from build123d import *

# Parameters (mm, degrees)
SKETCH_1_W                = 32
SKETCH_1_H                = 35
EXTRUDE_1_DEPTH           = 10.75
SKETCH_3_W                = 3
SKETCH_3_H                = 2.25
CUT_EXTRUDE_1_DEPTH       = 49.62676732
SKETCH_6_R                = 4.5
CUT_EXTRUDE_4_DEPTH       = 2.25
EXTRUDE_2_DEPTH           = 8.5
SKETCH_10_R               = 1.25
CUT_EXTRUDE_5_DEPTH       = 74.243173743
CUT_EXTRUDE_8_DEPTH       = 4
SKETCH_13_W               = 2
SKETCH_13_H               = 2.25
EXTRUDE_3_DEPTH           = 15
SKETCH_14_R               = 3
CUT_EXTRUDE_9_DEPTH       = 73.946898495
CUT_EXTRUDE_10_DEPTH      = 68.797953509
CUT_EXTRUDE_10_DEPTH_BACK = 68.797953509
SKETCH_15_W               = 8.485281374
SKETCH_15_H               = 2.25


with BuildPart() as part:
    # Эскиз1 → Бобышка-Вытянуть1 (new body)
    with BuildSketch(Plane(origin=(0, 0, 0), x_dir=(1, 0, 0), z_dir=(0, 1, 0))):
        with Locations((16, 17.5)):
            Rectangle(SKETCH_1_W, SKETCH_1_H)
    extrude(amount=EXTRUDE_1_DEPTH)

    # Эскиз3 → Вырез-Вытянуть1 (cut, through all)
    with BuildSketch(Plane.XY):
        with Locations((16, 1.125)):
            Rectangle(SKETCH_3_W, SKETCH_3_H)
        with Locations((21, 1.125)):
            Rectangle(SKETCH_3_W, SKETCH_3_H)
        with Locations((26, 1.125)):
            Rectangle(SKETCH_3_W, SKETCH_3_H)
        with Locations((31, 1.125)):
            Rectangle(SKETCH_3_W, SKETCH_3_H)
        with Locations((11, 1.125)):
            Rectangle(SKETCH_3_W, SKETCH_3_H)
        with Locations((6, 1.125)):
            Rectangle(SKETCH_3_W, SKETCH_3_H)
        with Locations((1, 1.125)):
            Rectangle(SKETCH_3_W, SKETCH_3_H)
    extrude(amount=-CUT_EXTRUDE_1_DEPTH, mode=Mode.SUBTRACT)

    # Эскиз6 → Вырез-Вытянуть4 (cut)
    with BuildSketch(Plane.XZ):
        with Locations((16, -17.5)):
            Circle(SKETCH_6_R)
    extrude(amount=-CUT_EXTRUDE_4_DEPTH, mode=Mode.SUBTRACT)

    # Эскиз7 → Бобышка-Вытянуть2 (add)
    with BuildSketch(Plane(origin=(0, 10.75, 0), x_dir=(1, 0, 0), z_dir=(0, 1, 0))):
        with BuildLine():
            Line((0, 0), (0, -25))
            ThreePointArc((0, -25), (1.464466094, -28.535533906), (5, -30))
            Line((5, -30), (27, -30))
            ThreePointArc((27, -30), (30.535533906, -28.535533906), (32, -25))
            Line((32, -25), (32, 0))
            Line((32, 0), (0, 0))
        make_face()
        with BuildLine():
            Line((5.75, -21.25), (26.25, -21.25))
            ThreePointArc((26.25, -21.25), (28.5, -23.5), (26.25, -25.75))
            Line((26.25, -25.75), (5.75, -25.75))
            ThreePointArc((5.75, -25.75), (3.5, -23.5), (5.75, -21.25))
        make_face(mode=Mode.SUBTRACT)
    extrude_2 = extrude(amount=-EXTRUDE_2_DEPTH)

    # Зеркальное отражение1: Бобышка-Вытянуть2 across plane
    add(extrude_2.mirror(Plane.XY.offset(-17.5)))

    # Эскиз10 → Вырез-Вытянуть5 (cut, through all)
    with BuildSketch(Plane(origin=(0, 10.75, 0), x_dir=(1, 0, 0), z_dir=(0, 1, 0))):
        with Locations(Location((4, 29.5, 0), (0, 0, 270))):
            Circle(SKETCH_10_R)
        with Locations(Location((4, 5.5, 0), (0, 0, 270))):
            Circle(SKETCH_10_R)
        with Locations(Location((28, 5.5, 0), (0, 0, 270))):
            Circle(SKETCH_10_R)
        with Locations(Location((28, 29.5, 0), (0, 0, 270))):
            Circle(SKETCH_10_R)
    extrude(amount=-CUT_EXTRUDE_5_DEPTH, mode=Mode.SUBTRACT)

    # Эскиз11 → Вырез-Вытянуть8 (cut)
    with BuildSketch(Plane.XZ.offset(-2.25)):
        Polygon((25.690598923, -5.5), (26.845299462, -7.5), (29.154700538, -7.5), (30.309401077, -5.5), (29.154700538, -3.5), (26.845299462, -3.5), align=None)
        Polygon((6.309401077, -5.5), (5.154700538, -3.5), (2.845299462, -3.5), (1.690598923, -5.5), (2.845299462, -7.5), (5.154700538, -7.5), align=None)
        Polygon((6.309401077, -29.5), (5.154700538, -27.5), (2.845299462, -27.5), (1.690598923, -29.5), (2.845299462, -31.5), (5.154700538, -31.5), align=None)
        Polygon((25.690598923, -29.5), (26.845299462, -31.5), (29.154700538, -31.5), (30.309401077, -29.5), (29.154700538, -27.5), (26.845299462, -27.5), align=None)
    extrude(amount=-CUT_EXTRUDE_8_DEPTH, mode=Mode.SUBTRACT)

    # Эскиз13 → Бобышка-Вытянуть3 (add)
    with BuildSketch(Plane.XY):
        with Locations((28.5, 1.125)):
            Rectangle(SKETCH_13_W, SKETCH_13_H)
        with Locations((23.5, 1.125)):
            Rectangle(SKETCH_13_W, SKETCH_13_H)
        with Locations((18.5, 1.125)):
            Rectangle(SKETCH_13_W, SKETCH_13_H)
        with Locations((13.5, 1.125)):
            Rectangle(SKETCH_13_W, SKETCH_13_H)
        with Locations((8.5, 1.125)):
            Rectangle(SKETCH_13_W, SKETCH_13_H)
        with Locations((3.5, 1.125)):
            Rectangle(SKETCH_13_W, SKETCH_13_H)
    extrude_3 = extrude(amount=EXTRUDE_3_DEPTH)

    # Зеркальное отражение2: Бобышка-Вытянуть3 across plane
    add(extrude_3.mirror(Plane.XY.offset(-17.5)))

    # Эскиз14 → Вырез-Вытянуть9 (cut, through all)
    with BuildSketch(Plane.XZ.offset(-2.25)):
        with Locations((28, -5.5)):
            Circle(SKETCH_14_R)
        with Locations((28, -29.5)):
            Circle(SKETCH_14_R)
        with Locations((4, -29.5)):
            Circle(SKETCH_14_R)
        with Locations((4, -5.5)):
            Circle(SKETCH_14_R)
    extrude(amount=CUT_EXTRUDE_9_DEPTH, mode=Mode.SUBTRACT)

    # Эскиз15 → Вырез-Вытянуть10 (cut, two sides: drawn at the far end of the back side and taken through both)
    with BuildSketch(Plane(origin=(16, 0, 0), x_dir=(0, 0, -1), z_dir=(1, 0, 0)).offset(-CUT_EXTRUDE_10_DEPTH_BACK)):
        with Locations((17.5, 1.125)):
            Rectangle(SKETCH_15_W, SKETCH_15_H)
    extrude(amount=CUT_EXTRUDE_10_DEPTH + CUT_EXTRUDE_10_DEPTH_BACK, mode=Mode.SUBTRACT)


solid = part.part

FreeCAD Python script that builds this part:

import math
import FreeCAD as App
import Part
import Sketcher
from FreeCAD import Vector
Q = App.Units.Quantity

doc = App.newDocument("Part")
body = doc.addObject("PartDesign::Body", "Body")

# Sketch on XZ plane
sketch1 = body.newObject("Sketcher::SketchObject", "Sketch")
sketch1.AttachmentSupport = (doc.getObject("XZ_Plane"), [""])
sketch1.MapMode = "FlatFace"
sketch1.addGeometry([
    Part.LineSegment(Vector(0, -35, 0), Vector(0, 0, 0)),
    Part.LineSegment(Vector(0, 0, 0), Vector(32, 0, 0)),
    Part.LineSegment(Vector(32, 0, 0), Vector(32, -35, 0)),
    Part.LineSegment(Vector(32, -35, 0), Vector(0, -35, 0)),
], False)
sketch1.addConstraint([
    Sketcher.Constraint("Coincident", 0, 2, 1, 1),
    Sketcher.Constraint("Coincident", 1, 2, 2, 1),
    Sketcher.Constraint("Coincident", 2, 2, 3, 1),
    Sketcher.Constraint("Coincident", 3, 2, 0, 1),
    Sketcher.Constraint("Vertical", 0),
    Sketcher.Constraint("Horizontal", 1),
    Sketcher.Constraint("Vertical", 2),
    Sketcher.Constraint("Horizontal", 3),
    Sketcher.Constraint("Coincident", 0, 2, -1, 1),
    Sketcher.Constraint("DistanceX", 1, 1, 1, 2, 32.0),
    Sketcher.Constraint("DistanceY", 0, 1, 0, 2, 35.0),
])
pad1 = body.newObject("PartDesign::Pad", "Pad")
pad1.Profile = sketch1
pad1.Length = 10.75
pad1.Reversed = True

# Sketch on XY plane
sketch2 = body.newObject("Sketcher::SketchObject", "Sketch001")
sketch2.AttachmentSupport = (doc.getObject("XY_Plane"), [""])
sketch2.MapMode = "FlatFace"
sketch2.addGeometry([
    Part.LineSegment(Vector(14.5, 2.25, 0), Vector(14.5, 0, 0)),  # 0
    Part.LineSegment(Vector(14.5, 0, 0), Vector(17.5, 0, 0)),  # 1
    Part.LineSegment(Vector(17.5, 0, 0), Vector(17.5, 2.25, 0)),  # 2
    Part.LineSegment(Vector(17.5, 2.25, 0), Vector(14.5, 2.25, 0)),  # 3
    Part.LineSegment(Vector(19.5, 2.25, 0), Vector(19.5, 0, 0)),  # 4
    Part.LineSegment(Vector(19.5, 0, 0), Vector(22.5, 0, 0)),  # 5
    Part.LineSegment(Vector(22.5, 0, 0), Vector(22.5, 2.25, 0)),  # 6
    Part.LineSegment(Vector(22.5, 2.25, 0), Vector(19.5, 2.25, 0)),  # 7
    Part.LineSegment(Vector(24.5, 2.25, 0), Vector(24.5, 0, 0)),  # 8
    Part.LineSegment(Vector(24.5, 0, 0), Vector(27.5, 0, 0)),  # 9
    Part.LineSegment(Vector(27.5, 0, 0), Vector(27.5, 2.25, 0)),  # 10
    Part.LineSegment(Vector(27.5, 2.25, 0), Vector(24.5, 2.25, 0)),  # 11
    Part.LineSegment(Vector(29.5, 2.25, 0), Vector(29.5, 0, 0)),  # 12
    Part.LineSegment(Vector(29.5, 0, 0), Vector(32.5, 0, 0)),  # 13
    Part.LineSegment(Vector(32.5, 0, 0), Vector(32.5, 2.25, 0)),  # 14
    Part.LineSegment(Vector(32.5, 2.25, 0), Vector(29.5, 2.25, 0)),  # 15
    Part.LineSegment(Vector(9.5, 2.25, 0), Vector(9.5, 0, 0)),  # 16
    Part.LineSegment(Vector(9.5, 0, 0), Vector(12.5, 0, 0)),  # 17
    Part.LineSegment(Vector(12.5, 0, 0), Vector(12.5, 2.25, 0)),  # 18
    Part.LineSegment(Vector(12.5, 2.25, 0), Vector(9.5, 2.25, 0)),  # 19
    Part.LineSegment(Vector(4.5, 2.25, 0), Vector(4.5, 0, 0)),  # 20
    Part.LineSegment(Vector(4.5, 0, 0), Vector(7.5, 0, 0)),  # 21
    Part.LineSegment(Vector(7.5, 0, 0), Vector(7.5, 2.25, 0)),  # 22
    Part.LineSegment(Vector(7.5, 2.25, 0), Vector(4.5, 2.25, 0)),  # 23
    Part.LineSegment(Vector(-0.5, 2.25, 0), Vector(-0.5, 0, 0)),  # 24
    Part.LineSegment(Vector(-0.5, 0, 0), Vector(2.5, 0, 0)),  # 25
    Part.LineSegment(Vector(2.5, 0, 0), Vector(2.5, 2.25, 0)),  # 26
    Part.LineSegment(Vector(2.5, 2.25, 0), Vector(-0.5, 2.25, 0)),  # 27
], False)
sketch2.addConstraint([
    Sketcher.Constraint("Coincident", 0, 2, 1, 1),
    Sketcher.Constraint("Coincident", 1, 2, 2, 1),
    Sketcher.Constraint("Coincident", 2, 2, 3, 1),
    Sketcher.Constraint("Coincident", 3, 2, 0, 1),
    Sketcher.Constraint("Coincident", 4, 2, 5, 1),
    Sketcher.Constraint("Coincident", 5, 2, 6, 1),
    Sketcher.Constraint("Coincident", 6, 2, 7, 1),
    Sketcher.Constraint("Coincident", 7, 2, 4, 1),
    Sketcher.Constraint("Coincident", 8, 2, 9, 1),
    Sketcher.Constraint("Coincident", 9, 2, 10, 1),
    Sketcher.Constraint("Coincident", 10, 2, 11, 1),
    Sketcher.Constraint("Coincident", 11, 2, 8, 1),
    Sketcher.Constraint("Coincident", 12, 2, 13, 1),
    Sketcher.Constraint("Coincident", 13, 2, 14, 1),
    Sketcher.Constraint("Coincident", 14, 2, 15, 1),
    Sketcher.Constraint("Coincident", 15, 2, 12, 1),
    Sketcher.Constraint("Coincident", 16, 2, 17, 1),
    Sketcher.Constraint("Coincident", 17, 2, 18, 1),
    Sketcher.Constraint("Coincident", 18, 2, 19, 1),
    Sketcher.Constraint("Coincident", 19, 2, 16, 1),
    Sketcher.Constraint("Coincident", 20, 2, 21, 1),
    Sketcher.Constraint("Coincident", 21, 2, 22, 1),
    Sketcher.Constraint("Coincident", 22, 2, 23, 1),
    Sketcher.Constraint("Coincident", 23, 2, 20, 1),
    Sketcher.Constraint("Coincident", 24, 2, 25, 1),
    Sketcher.Constraint("Coincident", 25, 2, 26, 1),
    Sketcher.Constraint("Coincident", 26, 2, 27, 1),
    Sketcher.Constraint("Coincident", 27, 2, 24, 1),
    Sketcher.Constraint("Vertical", 0),
    Sketcher.Constraint("Horizontal", 1),
    Sketcher.Constraint("Vertical", 2),
    Sketcher.Constraint("Horizontal", 3),
    Sketcher.Constraint("Vertical", 4),
    Sketcher.Constraint("Horizontal", 5),
    Sketcher.Constraint("Vertical", 6),
    Sketcher.Constraint("Horizontal", 7),
    Sketcher.Constraint("Vertical", 8),
    Sketcher.Constraint("Horizontal", 9),
    Sketcher.Constraint("Vertical", 10),
    Sketcher.Constraint("Horizontal", 11),
    Sketcher.Constraint("Vertical", 12),
    Sketcher.Constraint("Horizontal", 13),
    Sketcher.Constraint("Vertical", 14),
    Sketcher.Constraint("Horizontal", 15),
    Sketcher.Constraint("Vertical", 16),
    Sketcher.Constraint("Horizontal", 17),
    Sketcher.Constraint("Vertical", 18),
    Sketcher.Constraint("Horizontal", 19),
    Sketcher.Constraint("Vertical", 20),
    Sketcher.Constraint("Horizontal", 21),
    Sketcher.Constraint("Vertical", 22),
    Sketcher.Constraint("Horizontal", 23),
    Sketcher.Constraint("Vertical", 24),
    Sketcher.Constraint("Horizontal", 25),
    Sketcher.Constraint("Vertical", 26),
    Sketcher.Constraint("Horizontal", 27),
    Sketcher.Constraint("PointOnObject", 0, 2, -1),
    Sketcher.Constraint("PointOnObject", 4, 2, -1),
    Sketcher.Constraint("PointOnObject", 8, 2, -1),
    Sketcher.Constraint("PointOnObject", 12, 2, -1),
    Sketcher.Constraint("PointOnObject", 16, 2, -1),
    Sketcher.Constraint("PointOnObject", 20, 2, -1),
    Sketcher.Constraint("PointOnObject", 24, 2, -1),
    Sketcher.Constraint("Horizontal", 3, 2, 6, 2),
    Sketcher.Constraint("Horizontal", 7, 2, 10, 2),
    Sketcher.Constraint("Horizontal", 11, 2, 14, 2),
    Sketcher.Constraint("Horizontal", 15, 2, 18, 2),
    Sketcher.Constraint("Horizontal", 19, 2, 22, 2),
    Sketcher.Constraint("Horizontal", 23, 2, 26, 2),
    Sketcher.Constraint("Equal", 3, 5),
    Sketcher.Constraint("Equal", 7, 9),
    Sketcher.Constraint("Equal", 11, 13),
    Sketcher.Constraint("Equal", 15, 17),
    Sketcher.Constraint("Equal", 19, 21),
    Sketcher.Constraint("Equal", 23, 25),
    Sketcher.Constraint("DistanceX", 1, 1, 1, 2, 3.0),
    Sketcher.Constraint("DistanceX", 1, 2, 4, 2, 2.0),
    Sketcher.Constraint("DistanceX", 5, 2, 8, 2, 2.0),
    Sketcher.Constraint("DistanceX", 9, 2, 12, 2, 2.0),
    Sketcher.Constraint("DistanceX", 16, 2, 0, 2, 5.0),
    Sketcher.Constraint("DistanceX", 20, 2, 16, 2, 5.0),
    Sketcher.Constraint("DistanceX", 24, 2, 20, 2, 5.0),
    Sketcher.Constraint("DistanceY", 0, 2, 0, 1, 2.25),
    Sketcher.Constraint("DistanceX", -1, 1, 0, 2, 14.5),
])
pocket1 = body.newObject("PartDesign::Pocket", "Pocket")
pocket1.Profile = sketch2
pocket1.Type = "ThroughAll"

# Sketch on XZ plane
sketch3 = body.newObject("Sketcher::SketchObject", "Sketch002")
sketch3.AttachmentSupport = (doc.getObject("XZ_Plane"), [""])
sketch3.MapMode = "FlatFace"
sketch3.addGeometry(Part.Circle(Vector(16, -17.5, 0), Vector(0, 0, 1), 4.5), False)
sketch3.addConstraint([
    Sketcher.Constraint("Diameter", 0, 9.0),
    Sketcher.Constraint("DistanceX", -1, 1, 0, 3, 16.0),
    Sketcher.Constraint("DistanceY", 0, 3, -1, 1, 17.5),
])
pocket2 = body.newObject("PartDesign::Pocket", "Pocket001")
pocket2.Profile = sketch3
pocket2.Length = 2.25

# Sketch on XZ plane
sketch4 = body.newObject("Sketcher::SketchObject", "Sketch003")
sketch4.AttachmentSupport = (doc.getObject("XZ_Plane"), [""])
sketch4.MapMode = "FlatFace"
sketch4.AttachmentOffset = App.Placement(Vector(0, 0, -10.75), App.Rotation())
sketch4.addGeometry([
    Part.LineSegment(Vector(0, 0, 0), Vector(0, 25, 0)),  # 0
    Part.ArcOfCircle(Part.Circle(Vector(5, 25, 0), Vector(0, 0, 1), 5), math.radians(90), math.radians(180)),  # 1
    Part.LineSegment(Vector(5, 30, 0), Vector(27, 30, 0)),  # 2
    Part.ArcOfCircle(Part.Circle(Vector(27, 25, 0), Vector(0, 0, 1), 5), math.radians(0), math.radians(90)),  # 3
    Part.LineSegment(Vector(32, 25, 0), Vector(32, 0, 0)),  # 4
    Part.LineSegment(Vector(32, 0, 0), Vector(0, 0, 0)),  # 5
    Part.ArcOfCircle(Part.Circle(Vector(5.75, 23.5, 0), Vector(0, 0, 1), 2.25), math.radians(90), math.radians(270)),  # 6
    Part.LineSegment(Vector(5.75, 21.25, 0), Vector(26.25, 21.25, 0)),  # 7
    Part.ArcOfCircle(Part.Circle(Vector(26.25, 23.5, 0), Vector(0, 0, 1), 2.25), math.radians(-90), math.radians(90)),  # 8
    Part.LineSegment(Vector(26.25, 25.75, 0), Vector(5.75, 25.75, 0)),  # 9
], False)
sketch4.addConstraint([
    Sketcher.Constraint("Tangent", 0, 2, 1, 2),
    Sketcher.Constraint("Tangent", 1, 1, 2, 1),
    Sketcher.Constraint("Tangent", 2, 2, 3, 2),
    Sketcher.Constraint("Tangent", 3, 1, 4, 1),
    Sketcher.Constraint("Coincident", 4, 2, 5, 1),
    Sketcher.Constraint("Coincident", 5, 2, 0, 1),
    Sketcher.Constraint("Tangent", 6, 2, 7, 1),
    Sketcher.Constraint("Tangent", 7, 2, 8, 1),
    Sketcher.Constraint("Tangent", 8, 2, 9, 1),
    Sketcher.Constraint("Tangent", 9, 2, 6, 1),
    Sketcher.Constraint("Vertical", 0),
    Sketcher.Constraint("Horizontal", 2),
    Sketcher.Constraint("Vertical", 4),
    Sketcher.Constraint("Horizontal", 5),
    Sketcher.Constraint("Horizontal", 7),
    Sketcher.Constraint("Horizontal", 9),
    Sketcher.Constraint("Coincident", 5, 2, -1, 1),
    Sketcher.Constraint("Equal", 1, 3),
    Sketcher.Constraint("Radius", 1, 5.0),
    Sketcher.Constraint("DistanceX", 2, 1, 2, 2, 22.0),
    Sketcher.Constraint("DistanceY", 0, 1, 0, 2, 25.0),
    Sketcher.Constraint("Radius", 6, 2.25),
    Sketcher.Constraint("DistanceX", 7, 1, 7, 2, 20.5),
    Sketcher.Constraint("DistanceY", -1, 1, 6, 3, 23.5),
    Sketcher.Constraint("DistanceX", -1, 1, 6, 3, 5.75),
])
pad2 = body.newObject("PartDesign::Pad", "Pad001")
pad2.Profile = sketch4
pad2.Length = 8.5
doc.recompute()

datumplane = body.newObject("PartDesign::Plane", "DatumPlane")
datumplane.AttachmentSupport = (doc.getObject("XY_Plane"), [""])
datumplane.MapMode = "FlatFace"
datumplane.AttachmentOffset = App.Placement(Vector(0, 0, -17.5), App.Rotation())
mirrored = body.newObject("PartDesign::Mirrored", "Mirrored")
mirrored.Originals = [pad2]
mirrored.MirrorPlane = (datumplane, [""])
body.Tip = mirrored

# Sketch on XZ plane
sketch5 = body.newObject("Sketcher::SketchObject", "Sketch004")
sketch5.AttachmentSupport = (doc.getObject("XZ_Plane"), [""])
sketch5.MapMode = "FlatFace"
sketch5.AttachmentOffset = App.Placement(Vector(0, 0, -10.75), App.Rotation())
sketch5.addGeometry([
    Part.Circle(Vector(4, -29.5, 0), Vector(0, 0, 1), 1.25),
    Part.Circle(Vector(4, -5.5, 0), Vector(0, 0, 1), 1.25),
    Part.Circle(Vector(28, -5.5, 0), Vector(0, 0, 1), 1.25),
    Part.Circle(Vector(28, -29.5, 0), Vector(0, 0, 1), 1.25),
], False)
sketch5.addConstraint([
    Sketcher.Constraint("Equal", 0, 1),
    Sketcher.Constraint("Equal", 1, 2),
    Sketcher.Constraint("Equal", 2, 3),
    Sketcher.Constraint("Horizontal", 1, 3, 2, 3),
    Sketcher.Constraint("Horizontal", 0, 3, 3, 3),
    Sketcher.Constraint("Vertical", 0, 3, 1, 3),
    Sketcher.Constraint("Vertical", 2, 3, 3, 3),
    Sketcher.Constraint("Diameter", 0, 2.5),
    Sketcher.Constraint("DistanceX", -1, 1, 0, 3, 4.0),
    Sketcher.Constraint("DistanceX", -1, 1, 2, 3, 28.0),
    Sketcher.Constraint("DistanceY", 0, 3, 1, 3, 24.0),
    Sketcher.Constraint("DistanceY", 0, 3, -1, 1, 29.5),
])
pocket3 = body.newObject("PartDesign::Pocket", "Pocket002")
pocket3.Profile = sketch5
pocket3.Type = "ThroughAll"
pocket3.Reversed = True

# Sketch on XZ plane
sketch6 = body.newObject("Sketcher::SketchObject", "Sketch005")
sketch6.AttachmentSupport = (doc.getObject("XZ_Plane"), [""])
sketch6.MapMode = "FlatFace"
sketch6.AttachmentOffset = App.Placement(Vector(0, 0, -2.25), App.Rotation())
sketch6.addGeometry([
    Part.LineSegment(Vector(25.690599, -5.5, 0), Vector(26.845299, -7.5, 0)),  # 0
    Part.LineSegment(Vector(26.845299, -7.5, 0), Vector(29.154701, -7.5, 0)),  # 1
    Part.LineSegment(Vector(29.154701, -7.5, 0), Vector(30.309401, -5.5, 0)),  # 2
    Part.LineSegment(Vector(30.309401, -5.5, 0), Vector(29.154701, -3.5, 0)),  # 3
    Part.LineSegment(Vector(29.154701, -3.5, 0), Vector(26.845299, -3.5, 0)),  # 4
    Part.LineSegment(Vector(26.845299, -3.5, 0), Vector(25.690599, -5.5, 0)),  # 5
    Part.LineSegment(Vector(6.309401, -5.5, 0), Vector(5.154701, -3.5, 0)),  # 6
    Part.LineSegment(Vector(5.154701, -3.5, 0), Vector(2.845299, -3.5, 0)),  # 7
    Part.LineSegment(Vector(2.845299, -3.5, 0), Vector(1.690599, -5.5, 0)),  # 8
    Part.LineSegment(Vector(1.690599, -5.5, 0), Vector(2.845299, -7.5, 0)),  # 9
    Part.LineSegment(Vector(2.845299, -7.5, 0), Vector(5.154701, -7.5, 0)),  # 10
    Part.LineSegment(Vector(5.154701, -7.5, 0), Vector(6.309401, -5.5, 0)),  # 11
    Part.LineSegment(Vector(6.309401, -29.5, 0), Vector(5.154701, -27.5, 0)),  # 12
    Part.LineSegment(Vector(5.154701, -27.5, 0), Vector(2.845299, -27.5, 0)),  # 13
    Part.LineSegment(Vector(2.845299, -27.5, 0), Vector(1.690599, -29.5, 0)),  # 14
    Part.LineSegment(Vector(1.690599, -29.5, 0), Vector(2.845299, -31.5, 0)),  # 15
    Part.LineSegment(Vector(2.845299, -31.5, 0), Vector(5.154701, -31.5, 0)),  # 16
    Part.LineSegment(Vector(5.154701, -31.5, 0), Vector(6.309401, -29.5, 0)),  # 17
    Part.LineSegment(Vector(25.690599, -29.5, 0), Vector(26.845299, -31.5, 0)),  # 18
    Part.LineSegment(Vector(26.845299, -31.5, 0), Vector(29.154701, -31.5, 0)),  # 19
    Part.LineSegment(Vector(29.154701, -31.5, 0), Vector(30.309401, -29.5, 0)),  # 20
    Part.LineSegment(Vector(30.309401, -29.5, 0), Vector(29.154701, -27.5, 0)),  # 21
    Part.LineSegment(Vector(29.154701, -27.5, 0), Vector(26.845299, -27.5, 0)),  # 22
    Part.LineSegment(Vector(26.845299, -27.5, 0), Vector(25.690599, -29.5, 0)),  # 23
], False)
sketch6.addConstraint([
    Sketcher.Constraint("Coincident", 0, 2, 1, 1),
    Sketcher.Constraint("Coincident", 1, 2, 2, 1),
    Sketcher.Constraint("Coincident", 2, 2, 3, 1),
    Sketcher.Constraint("Coincident", 3, 2, 4, 1),
    Sketcher.Constraint("Coincident", 4, 2, 5, 1),
    Sketcher.Constraint("Coincident", 5, 2, 0, 1),
    Sketcher.Constraint("Coincident", 6, 2, 7, 1),
    Sketcher.Constraint("Coincident", 7, 2, 8, 1),
    Sketcher.Constraint("Coincident", 8, 2, 9, 1),
    Sketcher.Constraint("Coincident", 9, 2, 10, 1),
    Sketcher.Constraint("Coincident", 10, 2, 11, 1),
    Sketcher.Constraint("Coincident", 11, 2, 6, 1),
    Sketcher.Constraint("Coincident", 12, 2, 13, 1),
    Sketcher.Constraint("Coincident", 13, 2, 14, 1),
    Sketcher.Constraint("Coincident", 14, 2, 15, 1),
    Sketcher.Constraint("Coincident", 15, 2, 16, 1),
    Sketcher.Constraint("Coincident", 16, 2, 17, 1),
    Sketcher.Constraint("Coincident", 17, 2, 12, 1),
    Sketcher.Constraint("Coincident", 18, 2, 19, 1),
    Sketcher.Constraint("Coincident", 19, 2, 20, 1),
    Sketcher.Constraint("Coincident", 20, 2, 21, 1),
    Sketcher.Constraint("Coincident", 21, 2, 22, 1),
    Sketcher.Constraint("Coincident", 22, 2, 23, 1),
    Sketcher.Constraint("Coincident", 23, 2, 18, 1),
    Sketcher.Constraint("Horizontal", 1),
    Sketcher.Constraint("Horizontal", 4),
    Sketcher.Constraint("Horizontal", 7),
    Sketcher.Constraint("Horizontal", 10),
    Sketcher.Constraint("Horizontal", 13),
    Sketcher.Constraint("Horizontal", 16),
    Sketcher.Constraint("Horizontal", 19),
    Sketcher.Constraint("Horizontal", 22),
    Sketcher.Constraint("Parallel", 0, 3),
    Sketcher.Constraint("Parallel", 2, 5),
    Sketcher.Constraint("Parallel", 3, 6),
    Sketcher.Constraint("Parallel", 5, 8),
    Sketcher.Constraint("Parallel", 6, 9),
    Sketcher.Constraint("Parallel", 8, 11),
    Sketcher.Constraint("Parallel", 9, 12),
    Sketcher.Constraint("Parallel", 11, 14),
    Sketcher.Constraint("Parallel", 12, 15),
    Sketcher.Constraint("Parallel", 14, 17),
    Sketcher.Constraint("Parallel", 15, 18),
    Sketcher.Constraint("Parallel", 17, 20),
    Sketcher.Constraint("Parallel", 18, 21),
    Sketcher.Constraint("Parallel", 20, 23),
    Sketcher.Constraint("Horizontal", 2, 2, 5, 2),
    Sketcher.Constraint("Horizontal", 4, 2, 6, 2),
    Sketcher.Constraint("Horizontal", 5, 2, 8, 2),
    Sketcher.Constraint("Horizontal", 1, 2, 9, 2),
    Sketcher.Constraint("Horizontal", 8, 2, 11, 2),
    Sketcher.Constraint("Horizontal", 14, 2, 17, 2),
    Sketcher.Constraint("Horizontal", 16, 2, 18, 2),
    Sketcher.Constraint("Horizontal", 17, 2, 20, 2),
    Sketcher.Constraint("Horizontal", 13, 2, 21, 2),
    Sketcher.Constraint("Horizontal", 20, 2, 23, 2),
    Sketcher.Constraint("Vertical", 1, 2, 3, 2),
    Sketcher.Constraint("Vertical", 0, 2, 4, 2),
    Sketcher.Constraint("Vertical", 10, 2, 12, 2),
    Sketcher.Constraint("Vertical", 9, 2, 13, 2),
    Sketcher.Constraint("Vertical", 8, 2, 14, 2),
    Sketcher.Constraint("Vertical", 13, 2, 15, 2),
    Sketcher.Constraint("Vertical", 4, 2, 18, 2),
    Sketcher.Constraint("Vertical", 3, 2, 19, 2),
    Sketcher.Constraint("Equal", 4, 7),
    Sketcher.Constraint("Angle", 0, Q("-60 deg")),
    Sketcher.Constraint("DistanceY", 1, 2, 2, 2, 2.0),
    Sketcher.Constraint("DistanceX", 6, 2, 3, 2, 24.0),
    Sketcher.Constraint("DistanceY", 12, 2, 10, 2, 20.0),
    Sketcher.Constraint("DistanceY", 0, 2, -1, 1, 7.5),
    Sketcher.Constraint("DistanceX", 1, 1, 1, 2, 2.309401),
    Sketcher.Constraint("DistanceX", -1, 1, 0, 2, 26.845299),
])
pocket4 = body.newObject("PartDesign::Pocket", "Pocket003")
pocket4.Profile = sketch6
pocket4.Length = 4

# Sketch on XY plane
sketch7 = body.newObject("Sketcher::SketchObject", "Sketch006")
sketch7.AttachmentSupport = (doc.getObject("XY_Plane"), [""])
sketch7.MapMode = "FlatFace"
sketch7.addGeometry([
    Part.LineSegment(Vector(27.5, 2.25, 0), Vector(27.5, 0, 0)),  # 0
    Part.LineSegment(Vector(27.5, 0, 0), Vector(29.5, 0, 0)),  # 1
    Part.LineSegment(Vector(29.5, 0, 0), Vector(29.5, 2.25, 0)),  # 2
    Part.LineSegment(Vector(29.5, 2.25, 0), Vector(27.5, 2.25, 0)),  # 3
    Part.LineSegment(Vector(22.5, 2.25, 0), Vector(22.5, 0, 0)),  # 4
    Part.LineSegment(Vector(22.5, 0, 0), Vector(24.5, 0, 0)),  # 5
    Part.LineSegment(Vector(24.5, 0, 0), Vector(24.5, 2.25, 0)),  # 6
    Part.LineSegment(Vector(24.5, 2.25, 0), Vector(22.5, 2.25, 0)),  # 7
    Part.LineSegment(Vector(17.5, 2.25, 0), Vector(17.5, 0, 0)),  # 8
    Part.LineSegment(Vector(17.5, 0, 0), Vector(19.5, 0, 0)),  # 9
    Part.LineSegment(Vector(19.5, 0, 0), Vector(19.5, 2.25, 0)),  # 10
    Part.LineSegment(Vector(19.5, 2.25, 0), Vector(17.5, 2.25, 0)),  # 11
    Part.LineSegment(Vector(12.5, 2.25, 0), Vector(12.5, 0, 0)),  # 12
    Part.LineSegment(Vector(12.5, 0, 0), Vector(14.5, 0, 0)),  # 13
    Part.LineSegment(Vector(14.5, 0, 0), Vector(14.5, 2.25, 0)),  # 14
    Part.LineSegment(Vector(14.5, 2.25, 0), Vector(12.5, 2.25, 0)),  # 15
    Part.LineSegment(Vector(7.5, 2.25, 0), Vector(7.5, 0, 0)),  # 16
    Part.LineSegment(Vector(7.5, 0, 0), Vector(9.5, 0, 0)),  # 17
    Part.LineSegment(Vector(9.5, 0, 0), Vector(9.5, 2.25, 0)),  # 18
    Part.LineSegment(Vector(9.5, 2.25, 0), Vector(7.5, 2.25, 0)),  # 19
    Part.LineSegment(Vector(2.5, 2.25, 0), Vector(2.5, 0, 0)),  # 20
    Part.LineSegment(Vector(2.5, 0, 0), Vector(4.5, 0, 0)),  # 21
    Part.LineSegment(Vector(4.5, 0, 0), Vector(4.5, 2.25, 0)),  # 22
    Part.LineSegment(Vector(4.5, 2.25, 0), Vector(2.5, 2.25, 0)),  # 23
], False)
sketch7.addConstraint([
    Sketcher.Constraint("Coincident", 0, 2, 1, 1),
    Sketcher.Constraint("Coincident", 1, 2, 2, 1),
    Sketcher.Constraint("Coincident", 2, 2, 3, 1),
    Sketcher.Constraint("Coincident", 3, 2, 0, 1),
    Sketcher.Constraint("Coincident", 4, 2, 5, 1),
    Sketcher.Constraint("Coincident", 5, 2, 6, 1),
    Sketcher.Constraint("Coincident", 6, 2, 7, 1),
    Sketcher.Constraint("Coincident", 7, 2, 4, 1),
    Sketcher.Constraint("Coincident", 8, 2, 9, 1),
    Sketcher.Constraint("Coincident", 9, 2, 10, 1),
    Sketcher.Constraint("Coincident", 10, 2, 11, 1),
    Sketcher.Constraint("Coincident", 11, 2, 8, 1),
    Sketcher.Constraint("Coincident", 12, 2, 13, 1),
    Sketcher.Constraint("Coincident", 13, 2, 14, 1),
    Sketcher.Constraint("Coincident", 14, 2, 15, 1),
    Sketcher.Constraint("Coincident", 15, 2, 12, 1),
    Sketcher.Constraint("Coincident", 16, 2, 17, 1),
    Sketcher.Constraint("Coincident", 17, 2, 18, 1),
    Sketcher.Constraint("Coincident", 18, 2, 19, 1),
    Sketcher.Constraint("Coincident", 19, 2, 16, 1),
    Sketcher.Constraint("Coincident", 20, 2, 21, 1),
    Sketcher.Constraint("Coincident", 21, 2, 22, 1),
    Sketcher.Constraint("Coincident", 22, 2, 23, 1),
    Sketcher.Constraint("Coincident", 23, 2, 20, 1),
    Sketcher.Constraint("Vertical", 0),
    Sketcher.Constraint("Horizontal", 1),
    Sketcher.Constraint("Vertical", 2),
    Sketcher.Constraint("Horizontal", 3),
    Sketcher.Constraint("Vertical", 4),
    Sketcher.Constraint("Horizontal", 5),
    Sketcher.Constraint("Vertical", 6),
    Sketcher.Constraint("Horizontal", 7),
    Sketcher.Constraint("Vertical", 8),
    Sketcher.Constraint("Horizontal", 9),
    Sketcher.Constraint("Vertical", 10),
    Sketcher.Constraint("Horizontal", 11),
    Sketcher.Constraint("Vertical", 12),
    Sketcher.Constraint("Horizontal", 13),
    Sketcher.Constraint("Vertical", 14),
    Sketcher.Constraint("Horizontal", 15),
    Sketcher.Constraint("Vertical", 16),
    Sketcher.Constraint("Horizontal", 17),
    Sketcher.Constraint("Vertical", 18),
    Sketcher.Constraint("Horizontal", 19),
    Sketcher.Constraint("Vertical", 20),
    Sketcher.Constraint("Horizontal", 21),
    Sketcher.Constraint("Vertical", 22),
    Sketcher.Constraint("Horizontal", 23),
    Sketcher.Constraint("PointOnObject", 0, 2, -1),
    Sketcher.Constraint("PointOnObject", 4, 2, -1),
    Sketcher.Constraint("PointOnObject", 8, 2, -1),
    Sketcher.Constraint("PointOnObject", 12, 2, -1),
    Sketcher.Constraint("PointOnObject", 16, 2, -1),
    Sketcher.Constraint("PointOnObject", 20, 2, -1),
    Sketcher.Constraint("Horizontal", 3, 2, 6, 2),
    Sketcher.Constraint("Horizontal", 7, 2, 10, 2),
    Sketcher.Constraint("Horizontal", 11, 2, 14, 2),
    Sketcher.Constraint("Horizontal", 15, 2, 18, 2),
    Sketcher.Constraint("Horizontal", 19, 2, 22, 2),
    Sketcher.Constraint("Equal", 3, 5),
    Sketcher.Constraint("Equal", 7, 9),
    Sketcher.Constraint("Equal", 11, 13),
    Sketcher.Constraint("Equal", 15, 17),
    Sketcher.Constraint("Equal", 19, 21),
    Sketcher.Constraint("DistanceX", 1, 1, 1, 2, 2.0),
    Sketcher.Constraint("DistanceX", 4, 2, 0, 2, 5.0),
    Sketcher.Constraint("DistanceX", 8, 2, 4, 2, 5.0),
    Sketcher.Constraint("DistanceX", 12, 2, 8, 2, 5.0),
    Sketcher.Constraint("DistanceX", 16, 2, 12, 2, 5.0),
    Sketcher.Constraint("DistanceX", 20, 2, 16, 2, 5.0),
    Sketcher.Constraint("DistanceY", 0, 2, 0, 1, 2.25),
    Sketcher.Constraint("DistanceX", -1, 1, 0, 2, 27.5),
])
pad3 = body.newObject("PartDesign::Pad", "Pad002")
pad3.Profile = sketch7
pad3.Length = 15
doc.recompute()

datumplane2 = body.newObject("PartDesign::Plane", "DatumPlane001")
datumplane2.AttachmentSupport = (doc.getObject("XY_Plane"), [""])
datumplane2.MapMode = "FlatFace"
datumplane2.AttachmentOffset = App.Placement(Vector(0, 0, -17.5), App.Rotation())
mirrored2 = body.newObject("PartDesign::Mirrored", "Mirrored001")
mirrored2.Originals = [pad3]
mirrored2.MirrorPlane = (datumplane2, [""])
body.Tip = mirrored2

# Sketch on XZ plane
sketch8 = body.newObject("Sketcher::SketchObject", "Sketch007")
sketch8.AttachmentSupport = (doc.getObject("XZ_Plane"), [""])
sketch8.MapMode = "FlatFace"
sketch8.AttachmentOffset = App.Placement(Vector(0, 0, -2.25), App.Rotation())
sketch8.addGeometry([
    Part.Circle(Vector(28, -5.5, 0), Vector(0, 0, 1), 3),
    Part.Circle(Vector(28, -29.5, 0), Vector(0, 0, 1), 3),
    Part.Circle(Vector(4, -29.5, 0), Vector(0, 0, 1), 3),
    Part.Circle(Vector(4, -5.5, 0), Vector(0, 0, 1), 3),
], False)
sketch8.addConstraint([
    Sketcher.Constraint("Equal", 0, 1),
    Sketcher.Constraint("Equal", 1, 2),
    Sketcher.Constraint("Equal", 2, 3),
    Sketcher.Constraint("Horizontal", 1, 3, 2, 3),
    Sketcher.Constraint("Horizontal", 0, 3, 3, 3),
    Sketcher.Constraint("Vertical", 0, 3, 1, 3),
    Sketcher.Constraint("Vertical", 2, 3, 3, 3),
    Sketcher.Constraint("Diameter", 0, 6.0),
    Sketcher.Constraint("DistanceX", -1, 1, 0, 3, 28.0),
    Sketcher.Constraint("DistanceX", -1, 1, 2, 3, 4.0),
    Sketcher.Constraint("DistanceY", 1, 3, 0, 3, 24.0),
    Sketcher.Constraint("DistanceY", 0, 3, -1, 1, 5.5),
])
pocket5 = body.newObject("PartDesign::Pocket", "Pocket004")
pocket5.Profile = sketch8
pocket5.Type = "ThroughAll"
pocket5.Reversed = True

# Sketch on YZ plane
sketch9 = body.newObject("Sketcher::SketchObject", "Sketch008")
sketch9.AttachmentSupport = (doc.getObject("YZ_Plane"), [""])
sketch9.MapMode = "FlatFace"
sketch9.AttachmentOffset = App.Placement(Vector(0, 0, 16), App.Rotation())
sketch9.addGeometry([
    Part.LineSegment(Vector(2.25, -13.257359, 0), Vector(0, -13.257359, 0)),
    Part.LineSegment(Vector(0, -13.257359, 0), Vector(0, -21.742641, 0)),
    Part.LineSegment(Vector(0, -21.742641, 0), Vector(2.25, -21.742641, 0)),
    Part.LineSegment(Vector(2.25, -21.742641, 0), Vector(2.25, -13.257359, 0)),
], False)
sketch9.addConstraint([
    Sketcher.Constraint("Coincident", 0, 2, 1, 1),
    Sketcher.Constraint("Coincident", 1, 2, 2, 1),
    Sketcher.Constraint("Coincident", 2, 2, 3, 1),
    Sketcher.Constraint("Coincident", 3, 2, 0, 1),
    Sketcher.Constraint("Horizontal", 0),
    Sketcher.Constraint("Vertical", 1),
    Sketcher.Constraint("Horizontal", 2),
    Sketcher.Constraint("Vertical", 3),
    Sketcher.Constraint("PointOnObject", 0, 2, -2),
    Sketcher.Constraint("DistanceX", 0, 2, 0, 1, 2.25),
    Sketcher.Constraint("DistanceY", 1, 2, 1, 1, 8.485281),
    Sketcher.Constraint("DistanceY", 0, 2, -1, 1, 13.257359),
])
pocket6 = body.newObject("PartDesign::Pocket", "Pocket005")
pocket6.Profile = sketch9
pocket6.Type = "ThroughAll"
pocket6.Midplane = True

doc.recompute()
